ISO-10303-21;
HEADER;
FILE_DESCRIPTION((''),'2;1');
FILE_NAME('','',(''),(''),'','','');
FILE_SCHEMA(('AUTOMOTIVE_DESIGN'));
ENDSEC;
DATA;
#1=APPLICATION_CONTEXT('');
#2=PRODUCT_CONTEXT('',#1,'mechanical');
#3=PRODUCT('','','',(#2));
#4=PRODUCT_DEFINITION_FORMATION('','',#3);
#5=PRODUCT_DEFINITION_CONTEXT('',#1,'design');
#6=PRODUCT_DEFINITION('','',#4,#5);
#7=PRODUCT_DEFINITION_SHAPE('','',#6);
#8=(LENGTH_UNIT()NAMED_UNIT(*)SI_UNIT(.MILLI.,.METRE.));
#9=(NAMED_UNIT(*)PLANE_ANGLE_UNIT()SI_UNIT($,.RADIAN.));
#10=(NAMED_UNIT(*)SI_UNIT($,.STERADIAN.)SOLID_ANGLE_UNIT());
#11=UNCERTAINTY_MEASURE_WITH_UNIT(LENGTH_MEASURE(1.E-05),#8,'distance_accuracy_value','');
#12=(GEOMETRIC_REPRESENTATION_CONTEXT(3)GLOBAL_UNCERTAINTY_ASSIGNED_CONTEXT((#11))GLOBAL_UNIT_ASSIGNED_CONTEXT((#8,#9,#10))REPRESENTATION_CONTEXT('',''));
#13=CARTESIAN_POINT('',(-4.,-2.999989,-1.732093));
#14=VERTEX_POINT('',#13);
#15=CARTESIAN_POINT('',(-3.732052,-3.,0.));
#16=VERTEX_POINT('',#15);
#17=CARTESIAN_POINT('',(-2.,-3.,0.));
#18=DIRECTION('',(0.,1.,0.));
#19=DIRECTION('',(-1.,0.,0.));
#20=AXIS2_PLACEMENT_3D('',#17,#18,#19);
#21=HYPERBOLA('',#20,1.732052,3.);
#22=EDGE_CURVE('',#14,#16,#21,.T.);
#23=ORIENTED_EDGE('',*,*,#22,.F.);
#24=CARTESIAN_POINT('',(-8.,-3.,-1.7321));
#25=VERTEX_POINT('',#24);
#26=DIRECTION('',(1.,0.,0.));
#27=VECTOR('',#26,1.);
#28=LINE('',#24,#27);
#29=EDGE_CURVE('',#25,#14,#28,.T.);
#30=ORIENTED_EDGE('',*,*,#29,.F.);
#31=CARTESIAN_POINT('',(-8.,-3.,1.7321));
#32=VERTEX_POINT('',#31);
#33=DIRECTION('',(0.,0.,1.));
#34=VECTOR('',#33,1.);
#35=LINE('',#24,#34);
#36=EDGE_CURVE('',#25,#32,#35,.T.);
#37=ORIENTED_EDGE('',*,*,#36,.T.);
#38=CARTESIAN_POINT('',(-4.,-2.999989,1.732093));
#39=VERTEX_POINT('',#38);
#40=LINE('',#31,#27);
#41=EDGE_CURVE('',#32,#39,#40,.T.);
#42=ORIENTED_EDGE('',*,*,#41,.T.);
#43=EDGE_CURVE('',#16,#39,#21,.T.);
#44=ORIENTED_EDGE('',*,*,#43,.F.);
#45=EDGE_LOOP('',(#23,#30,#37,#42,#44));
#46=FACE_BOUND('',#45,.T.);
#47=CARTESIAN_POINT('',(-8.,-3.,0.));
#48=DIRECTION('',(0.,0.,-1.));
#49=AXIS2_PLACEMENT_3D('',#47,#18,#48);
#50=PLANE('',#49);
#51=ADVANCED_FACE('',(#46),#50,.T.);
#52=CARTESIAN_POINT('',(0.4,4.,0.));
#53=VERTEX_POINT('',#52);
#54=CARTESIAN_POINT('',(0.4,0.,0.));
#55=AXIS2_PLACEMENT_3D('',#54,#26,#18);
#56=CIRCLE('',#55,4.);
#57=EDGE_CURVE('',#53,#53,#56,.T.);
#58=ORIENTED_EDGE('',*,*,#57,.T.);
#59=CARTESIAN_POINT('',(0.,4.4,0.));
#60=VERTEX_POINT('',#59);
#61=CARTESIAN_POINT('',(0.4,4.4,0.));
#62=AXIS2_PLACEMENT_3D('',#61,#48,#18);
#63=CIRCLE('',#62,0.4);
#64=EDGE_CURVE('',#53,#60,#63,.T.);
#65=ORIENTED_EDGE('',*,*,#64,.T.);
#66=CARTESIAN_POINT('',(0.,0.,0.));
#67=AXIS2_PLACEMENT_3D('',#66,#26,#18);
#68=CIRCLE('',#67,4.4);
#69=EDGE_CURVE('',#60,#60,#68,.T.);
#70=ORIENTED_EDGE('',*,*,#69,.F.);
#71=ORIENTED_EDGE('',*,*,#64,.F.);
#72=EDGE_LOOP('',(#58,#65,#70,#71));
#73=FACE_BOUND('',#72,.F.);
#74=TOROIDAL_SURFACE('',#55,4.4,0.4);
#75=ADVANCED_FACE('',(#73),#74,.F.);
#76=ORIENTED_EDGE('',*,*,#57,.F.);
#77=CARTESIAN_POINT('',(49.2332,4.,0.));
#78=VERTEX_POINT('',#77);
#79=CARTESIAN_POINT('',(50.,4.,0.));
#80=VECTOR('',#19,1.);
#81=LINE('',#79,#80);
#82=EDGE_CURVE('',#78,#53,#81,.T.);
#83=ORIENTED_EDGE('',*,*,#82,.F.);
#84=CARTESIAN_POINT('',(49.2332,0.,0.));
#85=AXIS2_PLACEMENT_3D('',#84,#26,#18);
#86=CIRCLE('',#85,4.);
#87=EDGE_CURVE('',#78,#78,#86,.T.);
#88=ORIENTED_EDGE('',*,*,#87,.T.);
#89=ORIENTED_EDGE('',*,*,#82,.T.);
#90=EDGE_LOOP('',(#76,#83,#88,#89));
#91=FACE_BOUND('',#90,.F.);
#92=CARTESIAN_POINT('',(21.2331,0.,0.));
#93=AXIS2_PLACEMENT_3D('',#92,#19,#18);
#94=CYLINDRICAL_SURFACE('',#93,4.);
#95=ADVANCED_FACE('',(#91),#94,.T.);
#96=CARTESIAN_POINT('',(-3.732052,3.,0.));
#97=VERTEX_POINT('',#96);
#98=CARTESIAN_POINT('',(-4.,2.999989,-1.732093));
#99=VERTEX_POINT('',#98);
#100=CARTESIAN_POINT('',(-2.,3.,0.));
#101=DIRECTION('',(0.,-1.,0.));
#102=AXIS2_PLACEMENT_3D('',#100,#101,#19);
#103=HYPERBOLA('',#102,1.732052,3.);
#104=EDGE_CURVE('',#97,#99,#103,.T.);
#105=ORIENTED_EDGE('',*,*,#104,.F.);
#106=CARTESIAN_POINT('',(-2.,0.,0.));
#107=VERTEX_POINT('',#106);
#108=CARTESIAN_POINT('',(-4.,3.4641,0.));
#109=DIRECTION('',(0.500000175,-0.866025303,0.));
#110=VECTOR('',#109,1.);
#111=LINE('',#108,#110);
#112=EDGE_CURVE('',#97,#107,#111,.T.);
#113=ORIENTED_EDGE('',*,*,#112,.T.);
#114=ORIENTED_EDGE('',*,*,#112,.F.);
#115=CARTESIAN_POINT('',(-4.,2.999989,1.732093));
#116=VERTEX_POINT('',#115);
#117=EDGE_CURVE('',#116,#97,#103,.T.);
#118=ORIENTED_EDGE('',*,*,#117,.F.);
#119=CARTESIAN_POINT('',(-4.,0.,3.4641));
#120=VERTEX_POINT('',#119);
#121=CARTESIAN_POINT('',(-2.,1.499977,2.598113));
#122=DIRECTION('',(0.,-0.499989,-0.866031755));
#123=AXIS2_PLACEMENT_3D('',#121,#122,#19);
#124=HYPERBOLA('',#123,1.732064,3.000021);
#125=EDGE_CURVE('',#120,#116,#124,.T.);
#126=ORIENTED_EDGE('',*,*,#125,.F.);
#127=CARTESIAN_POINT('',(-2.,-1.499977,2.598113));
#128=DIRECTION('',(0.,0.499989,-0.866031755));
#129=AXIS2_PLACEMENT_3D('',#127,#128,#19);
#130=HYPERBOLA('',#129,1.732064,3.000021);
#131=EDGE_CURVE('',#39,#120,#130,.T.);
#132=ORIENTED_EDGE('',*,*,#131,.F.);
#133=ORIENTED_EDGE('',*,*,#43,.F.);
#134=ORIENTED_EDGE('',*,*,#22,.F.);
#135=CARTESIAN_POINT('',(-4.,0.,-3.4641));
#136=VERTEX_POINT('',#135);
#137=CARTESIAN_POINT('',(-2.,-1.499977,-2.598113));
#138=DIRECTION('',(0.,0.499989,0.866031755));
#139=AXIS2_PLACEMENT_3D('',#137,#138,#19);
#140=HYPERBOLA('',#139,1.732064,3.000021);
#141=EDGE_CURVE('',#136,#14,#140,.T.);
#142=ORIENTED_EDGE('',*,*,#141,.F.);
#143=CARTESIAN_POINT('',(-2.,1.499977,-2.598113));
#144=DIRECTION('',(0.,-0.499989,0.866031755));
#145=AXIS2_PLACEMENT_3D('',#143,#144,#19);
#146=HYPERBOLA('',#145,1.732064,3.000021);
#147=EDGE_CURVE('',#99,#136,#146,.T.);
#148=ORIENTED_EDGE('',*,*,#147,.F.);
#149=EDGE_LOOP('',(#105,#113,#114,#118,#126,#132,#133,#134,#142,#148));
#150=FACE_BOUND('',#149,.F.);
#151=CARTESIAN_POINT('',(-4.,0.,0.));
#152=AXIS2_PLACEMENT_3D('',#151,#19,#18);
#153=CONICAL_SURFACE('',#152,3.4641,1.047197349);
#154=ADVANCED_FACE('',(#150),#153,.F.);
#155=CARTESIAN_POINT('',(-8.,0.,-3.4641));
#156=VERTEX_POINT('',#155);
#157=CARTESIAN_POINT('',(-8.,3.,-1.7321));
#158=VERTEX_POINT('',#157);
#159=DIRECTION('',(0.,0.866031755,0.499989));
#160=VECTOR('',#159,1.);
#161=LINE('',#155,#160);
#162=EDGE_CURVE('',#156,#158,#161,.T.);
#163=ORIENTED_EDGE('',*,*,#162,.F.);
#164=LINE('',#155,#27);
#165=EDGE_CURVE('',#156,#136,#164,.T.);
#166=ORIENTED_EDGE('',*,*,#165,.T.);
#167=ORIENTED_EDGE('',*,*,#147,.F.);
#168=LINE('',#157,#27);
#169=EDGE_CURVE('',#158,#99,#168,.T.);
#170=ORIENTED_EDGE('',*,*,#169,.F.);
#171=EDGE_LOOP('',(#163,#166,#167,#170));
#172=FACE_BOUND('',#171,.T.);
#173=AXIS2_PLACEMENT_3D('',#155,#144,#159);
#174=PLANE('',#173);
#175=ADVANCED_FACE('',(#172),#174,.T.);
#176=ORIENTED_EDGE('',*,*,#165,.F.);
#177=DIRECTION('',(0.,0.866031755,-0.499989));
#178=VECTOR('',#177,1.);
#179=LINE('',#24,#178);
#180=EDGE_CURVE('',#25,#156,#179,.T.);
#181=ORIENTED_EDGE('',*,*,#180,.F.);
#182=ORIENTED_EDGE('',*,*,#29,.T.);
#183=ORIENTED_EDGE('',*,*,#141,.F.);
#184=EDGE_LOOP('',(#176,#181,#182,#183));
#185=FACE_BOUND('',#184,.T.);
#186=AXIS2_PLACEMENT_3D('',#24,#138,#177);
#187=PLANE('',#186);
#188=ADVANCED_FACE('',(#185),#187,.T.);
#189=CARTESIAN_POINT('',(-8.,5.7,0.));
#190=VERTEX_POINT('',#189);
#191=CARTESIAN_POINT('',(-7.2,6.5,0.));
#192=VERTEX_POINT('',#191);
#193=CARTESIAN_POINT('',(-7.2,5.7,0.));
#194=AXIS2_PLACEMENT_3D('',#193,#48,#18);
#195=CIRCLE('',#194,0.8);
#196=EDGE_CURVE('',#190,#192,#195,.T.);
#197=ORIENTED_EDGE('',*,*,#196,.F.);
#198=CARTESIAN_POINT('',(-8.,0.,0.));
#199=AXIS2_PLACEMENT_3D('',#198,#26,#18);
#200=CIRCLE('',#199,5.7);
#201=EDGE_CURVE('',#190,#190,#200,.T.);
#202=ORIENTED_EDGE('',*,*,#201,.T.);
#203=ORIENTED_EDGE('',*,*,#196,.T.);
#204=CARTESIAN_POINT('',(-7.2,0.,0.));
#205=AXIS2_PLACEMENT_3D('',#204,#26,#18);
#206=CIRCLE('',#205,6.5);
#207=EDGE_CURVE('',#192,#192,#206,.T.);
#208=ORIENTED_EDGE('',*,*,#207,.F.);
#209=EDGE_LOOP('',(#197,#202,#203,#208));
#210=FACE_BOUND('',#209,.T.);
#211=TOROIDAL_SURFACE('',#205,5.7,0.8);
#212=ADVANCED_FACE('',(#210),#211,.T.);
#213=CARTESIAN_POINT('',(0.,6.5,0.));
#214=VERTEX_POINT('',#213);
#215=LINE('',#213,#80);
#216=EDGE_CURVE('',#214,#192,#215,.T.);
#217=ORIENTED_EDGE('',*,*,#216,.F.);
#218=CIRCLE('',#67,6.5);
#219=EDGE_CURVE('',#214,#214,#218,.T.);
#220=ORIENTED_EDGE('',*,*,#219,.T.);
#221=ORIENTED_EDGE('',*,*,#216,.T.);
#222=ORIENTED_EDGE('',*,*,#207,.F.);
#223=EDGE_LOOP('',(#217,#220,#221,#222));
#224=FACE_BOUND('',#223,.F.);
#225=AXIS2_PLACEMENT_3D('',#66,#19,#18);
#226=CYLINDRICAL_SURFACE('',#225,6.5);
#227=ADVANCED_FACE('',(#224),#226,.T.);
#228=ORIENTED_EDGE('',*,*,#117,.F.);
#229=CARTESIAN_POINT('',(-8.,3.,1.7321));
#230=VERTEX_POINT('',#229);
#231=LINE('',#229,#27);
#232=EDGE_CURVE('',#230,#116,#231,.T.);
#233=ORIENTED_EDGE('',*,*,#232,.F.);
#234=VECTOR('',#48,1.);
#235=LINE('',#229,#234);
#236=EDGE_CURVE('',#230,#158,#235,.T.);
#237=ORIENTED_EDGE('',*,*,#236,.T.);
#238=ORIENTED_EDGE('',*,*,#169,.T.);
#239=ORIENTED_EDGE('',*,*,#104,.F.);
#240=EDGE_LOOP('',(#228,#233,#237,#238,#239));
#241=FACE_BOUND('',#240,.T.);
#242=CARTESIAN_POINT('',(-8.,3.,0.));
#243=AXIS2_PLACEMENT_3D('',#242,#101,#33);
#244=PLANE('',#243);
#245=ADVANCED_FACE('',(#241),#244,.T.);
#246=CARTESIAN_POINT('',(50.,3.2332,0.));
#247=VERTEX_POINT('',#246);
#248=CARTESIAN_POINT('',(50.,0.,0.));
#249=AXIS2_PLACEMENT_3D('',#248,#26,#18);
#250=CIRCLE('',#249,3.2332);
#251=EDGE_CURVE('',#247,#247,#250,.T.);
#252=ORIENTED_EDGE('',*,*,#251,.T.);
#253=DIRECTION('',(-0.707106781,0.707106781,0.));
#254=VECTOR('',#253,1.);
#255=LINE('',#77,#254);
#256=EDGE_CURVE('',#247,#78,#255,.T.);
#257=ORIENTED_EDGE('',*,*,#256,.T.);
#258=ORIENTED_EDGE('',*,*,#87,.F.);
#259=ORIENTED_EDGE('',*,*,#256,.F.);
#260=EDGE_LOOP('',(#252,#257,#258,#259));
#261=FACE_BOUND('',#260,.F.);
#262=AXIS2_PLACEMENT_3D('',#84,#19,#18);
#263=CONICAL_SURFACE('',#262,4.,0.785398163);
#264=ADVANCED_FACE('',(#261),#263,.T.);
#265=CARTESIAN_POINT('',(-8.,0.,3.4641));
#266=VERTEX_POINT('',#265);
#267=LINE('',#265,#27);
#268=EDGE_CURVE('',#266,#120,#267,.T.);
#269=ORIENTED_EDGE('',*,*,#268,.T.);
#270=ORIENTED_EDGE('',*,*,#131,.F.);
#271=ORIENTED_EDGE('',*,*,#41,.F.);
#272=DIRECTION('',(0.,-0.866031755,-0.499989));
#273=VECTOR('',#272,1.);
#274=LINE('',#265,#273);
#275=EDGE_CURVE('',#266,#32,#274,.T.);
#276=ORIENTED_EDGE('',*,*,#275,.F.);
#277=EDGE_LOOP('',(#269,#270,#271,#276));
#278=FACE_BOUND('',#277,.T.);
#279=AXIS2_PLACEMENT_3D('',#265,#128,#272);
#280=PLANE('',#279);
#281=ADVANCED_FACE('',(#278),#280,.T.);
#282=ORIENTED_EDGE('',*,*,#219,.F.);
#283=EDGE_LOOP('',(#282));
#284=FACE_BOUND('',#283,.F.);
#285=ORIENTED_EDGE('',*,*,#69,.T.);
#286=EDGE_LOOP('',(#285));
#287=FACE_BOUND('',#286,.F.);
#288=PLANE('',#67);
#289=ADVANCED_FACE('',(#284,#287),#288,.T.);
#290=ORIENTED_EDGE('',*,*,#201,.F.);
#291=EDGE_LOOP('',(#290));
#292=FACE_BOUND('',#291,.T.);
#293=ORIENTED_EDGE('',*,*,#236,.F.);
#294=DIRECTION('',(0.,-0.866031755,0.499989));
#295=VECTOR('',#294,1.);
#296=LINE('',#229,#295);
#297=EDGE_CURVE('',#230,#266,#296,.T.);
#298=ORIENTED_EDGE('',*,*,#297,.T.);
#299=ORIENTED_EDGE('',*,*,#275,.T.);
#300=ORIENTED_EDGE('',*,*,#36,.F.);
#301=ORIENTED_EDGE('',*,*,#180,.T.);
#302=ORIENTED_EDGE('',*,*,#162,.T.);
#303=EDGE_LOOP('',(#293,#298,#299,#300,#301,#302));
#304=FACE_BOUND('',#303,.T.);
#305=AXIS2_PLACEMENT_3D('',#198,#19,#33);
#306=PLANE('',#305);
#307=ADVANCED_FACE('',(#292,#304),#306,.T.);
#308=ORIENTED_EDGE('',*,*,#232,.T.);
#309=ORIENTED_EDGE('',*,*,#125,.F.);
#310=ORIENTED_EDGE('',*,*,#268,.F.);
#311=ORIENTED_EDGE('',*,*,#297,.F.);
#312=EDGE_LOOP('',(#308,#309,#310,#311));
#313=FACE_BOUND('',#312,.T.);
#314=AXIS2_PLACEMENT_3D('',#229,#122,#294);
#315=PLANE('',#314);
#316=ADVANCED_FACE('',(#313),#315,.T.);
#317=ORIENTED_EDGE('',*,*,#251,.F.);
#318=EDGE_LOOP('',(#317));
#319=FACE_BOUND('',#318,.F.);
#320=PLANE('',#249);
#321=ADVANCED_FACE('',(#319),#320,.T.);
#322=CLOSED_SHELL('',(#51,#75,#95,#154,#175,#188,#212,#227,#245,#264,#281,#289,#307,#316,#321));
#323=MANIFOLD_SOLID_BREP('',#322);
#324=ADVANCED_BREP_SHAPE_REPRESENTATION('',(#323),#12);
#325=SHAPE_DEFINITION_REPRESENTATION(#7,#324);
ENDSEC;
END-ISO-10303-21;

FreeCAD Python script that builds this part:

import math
import FreeCAD as App
import Part
import Sketcher
Q = App.Units.Quantity


def edges_at(feature, points):
    """Names of the edges that pass closest to the given points."""
    edges = feature.Shape.Edges
    near = lambda p: min(range(len(edges)), key=lambda i: edges[i].distToShape(Part.Vertex(*p))[0])
    return sorted({f"Edge{near(p) + 1}" for p in points})

doc = App.newDocument("Part")
body = doc.addObject("PartDesign::Body", "Body")

# Sketch on XY plane
sketch1 = body.newObject("Sketcher::SketchObject", "Sketch")
sketch1.AttachmentSupport = (doc.getObject("XY_Plane"), [""])
sketch1.MapMode = "FlatFace"
sketch1.addGeometry([
    Part.LineSegment(App.Vector(-4, 3.4641, 0), App.Vector(-2, 0, 0)),  # 0
    Part.LineSegment(App.Vector(-2, 0, 0), App.Vector(50, 0, 0)),  # 1
    Part.LineSegment(App.Vector(50, 0, 0), App.Vector(50, 4, 0)),  # 2
    Part.LineSegment(App.Vector(50, 4, 0), App.Vector(0, 4, 0)),  # 3
    Part.LineSegment(App.Vector(0, 4, 0), App.Vector(0, 6.5, 0)),  # 4
    Part.LineSegment(App.Vector(0, 6.5, 0), App.Vector(-8, 6.5, 0)),  # 5
    Part.LineSegment(App.Vector(-8, 6.5, 0), App.Vector(-8, 3.4641, 0)),  # 6
    Part.LineSegment(App.Vector(-8, 3.4641, 0), App.Vector(-4, 3.4641, 0)),  # 7
], False)
sketch1.addConstraint([
    Sketcher.Constraint("Coincident", 0, 2, 1, 1),
    Sketcher.Constraint("Coincident", 1, 2, 2, 1),
    Sketcher.Constraint("Coincident", 2, 2, 3, 1),
    Sketcher.Constraint("Coincident", 3, 2, 4, 1),
    Sketcher.Constraint("Coincident", 4, 2, 5, 1),
    Sketcher.Constraint("Coincident", 5, 2, 6, 1),
    Sketcher.Constraint("Coincident", 6, 2, 7, 1),
    Sketcher.Constraint("Coincident", 7, 2, 0, 1),
    Sketcher.Constraint("Horizontal", 1),
    Sketcher.Constraint("Vertical", 2),
    Sketcher.Constraint("Horizontal", 3),
    Sketcher.Constraint("Vertical", 4),
    Sketcher.Constraint("Horizontal", 5),
    Sketcher.Constraint("Vertical", 6),
    Sketcher.Constraint("Horizontal", 7),
    Sketcher.Constraint("PointOnObject", 0, 2, -1),
    Sketcher.Constraint("PointOnObject", 3, 2, -2),
    Sketcher.Constraint("Equal", 7, 2),
    Sketcher.Constraint("DistanceX", 3, 2, 3, 1, 50.0),
    Sketcher.Constraint("DistanceX", 5, 2, 5, 1, 8.0),
    Sketcher.Constraint("DistanceX", 7, 1, 7, 2, 4.0),
    Sketcher.Constraint("Angle", 0, Q("-60 deg")),
    Sketcher.Constraint("Distance", 0, 4.0),
    Sketcher.Constraint("DistanceY", 4, 1, 4, 2, 2.5),
])
revolution = body.newObject("PartDesign::Revolution", "Revolution")
revolution.Profile = sketch1
revolution.ReferenceAxis = (sketch1, ["H_Axis"])
revolution.Angle = 360

# Sketch on YZ plane
sketch2 = body.newObject("Sketcher::SketchObject", "Sketch001")
sketch2.AttachmentSupport = (doc.getObject("YZ_Plane"), [""])
sketch2.MapMode = "FlatFace"
sketch2.AttachmentOffset = App.Placement(App.Vector(0, 0, -8), App.Rotation())
sketch2.addGeometry([
    Part.LineSegment(App.Vector(3, 1.7321, 0), App.Vector(0, 3.4641, 0)),  # 0
    Part.ArcOfCircle(Part.Circle(App.Vector(0, 0, 0), App.Vector(0, 0, 1), 3.4641), math.radians(30.000705), math.radians(90)),  # 1
    Part.ArcOfCircle(Part.Circle(App.Vector(0, 0, 0), App.Vector(0, 0, 1), 3.4641), math.radians(90), math.radians(149.999295)),  # 2
    Part.LineSegment(App.Vector(0, 3.4641, 0), App.Vector(-3, 1.7321, 0)),  # 3
    Part.ArcOfCircle(Part.Circle(App.Vector(0, 0, 0), App.Vector(0, 0, 1), 3.4641), math.radians(-30.000705), math.radians(30.000705)),  # 4
    Part.LineSegment(App.Vector(3, 1.7321, 0), App.Vector(3, -1.7321, 0)),  # 5
    Part.LineSegment(App.Vector(-3, 1.7321, 0), App.Vector(-3, -1.7321, 0)),  # 6
    Part.ArcOfCircle(Part.Circle(App.Vector(0, 0, 0), App.Vector(0, 0, 1), 3.4641), math.radians(149.999295), math.radians(210.000705)),  # 7
    Part.LineSegment(App.Vector(-3, -1.7321, 0), App.Vector(0, -3.4641, 0)),  # 8
    Part.ArcOfCircle(Part.Circle(App.Vector(0, 0, 0), App.Vector(0, 0, 1), 3.4641), math.radians(-149.999295), math.radians(-90)),  # 9
    Part.ArcOfCircle(Part.Circle(App.Vector(0, 0, 0), App.Vector(0, 0, 1), 3.4641), math.radians(-90), math.radians(-30.000705)),  # 10
    Part.LineSegment(App.Vector(0, -3.4641, 0), App.Vector(3, -1.7321, 0)),  # 11
], False)
sketch2.addConstraint([
    Sketcher.Constraint("Coincident", 0, 1, 1, 1),
    Sketcher.Constraint("Coincident", 1, 2, 0, 2),
    Sketcher.Constraint("Coincident", 2, 1, 3, 1),
    Sketcher.Constraint("Coincident", 3, 2, 2, 2),
    Sketcher.Constraint("Coincident", 4, 1, 5, 2),
    Sketcher.Constraint("Coincident", 5, 1, 4, 2),
    Sketcher.Constraint("Coincident", 6, 1, 7, 1),
    Sketcher.Constraint("Coincident", 7, 2, 6, 2),
    Sketcher.Constraint("Coincident", 8, 1, 9, 1),
    Sketcher.Constraint("Coincident", 9, 2, 8, 2),
    Sketcher.Constraint("Coincident", 10, 1, 11, 1),
    Sketcher.Constraint("Coincident", 11, 2, 10, 2),
    Sketcher.Constraint("Vertical", 5),
    Sketcher.Constraint("Vertical", 6),
    Sketcher.Constraint("Coincident", 1, 3, -1, 1),
    Sketcher.Constraint("Coincident", 2, 3, -1, 1),
    Sketcher.Constraint("Coincident", 4, 3, -1, 1),
    Sketcher.Constraint("Coincident", 7, 3, -1, 1),
    Sketcher.Constraint("Coincident", 9, 3, -1, 1),
    Sketcher.Constraint("Coincident", 10, 3, -1, 1),
    Sketcher.Constraint("Coincident", 2, 1, 1, 2),
    Sketcher.Constraint("Coincident", 5, 1, 0, 1),
    Sketcher.Constraint("Coincident", 6, 1, 3, 2),
    Sketcher.Constraint("Coincident", 8, 1, 7, 2),
    Sketcher.Constraint("Coincident", 10, 1, 9, 2),
    Sketcher.Constraint("PointOnObject", 1, 2, -2),
    Sketcher.Constraint("PointOnObject", 9, 2, -2),
    Sketcher.Constraint("Parallel", 0, 8),
    Sketcher.Constraint("Parallel", 3, 11),
    Sketcher.Constraint("Angle", 0, Q("150.0007 deg")),
    Sketcher.Constraint("DistanceX", -1, 1, 0, 1, 3.0),
])
pad1 = body.newObject("PartDesign::Pad", "Pad")
pad1.Profile = sketch2
pad1.Length = 4.2679
doc.recompute()

fillet = body.newObject("PartDesign::Fillet", "Fillet")
fillet.Base = (pad1, edges_at(pad1, [(-8, -6.5, 0)]))
fillet.Radius = 0.8
doc.recompute()

chamfer = body.newObject("PartDesign::Chamfer", "Chamfer")
chamfer.Base = (fillet, edges_at(fillet, [(50, -4, 0)]))
chamfer.ChamferType = "Two distances"
chamfer.Size = 0.7668
chamfer.Size2 = 0.7668
doc.recompute()

fillet2 = body.newObject("PartDesign::Fillet", "Fillet001")
fillet2.Base = (chamfer, edges_at(chamfer, [(0, -4, 0)]))
fillet2.Radius = 0.4

doc.recompute()
